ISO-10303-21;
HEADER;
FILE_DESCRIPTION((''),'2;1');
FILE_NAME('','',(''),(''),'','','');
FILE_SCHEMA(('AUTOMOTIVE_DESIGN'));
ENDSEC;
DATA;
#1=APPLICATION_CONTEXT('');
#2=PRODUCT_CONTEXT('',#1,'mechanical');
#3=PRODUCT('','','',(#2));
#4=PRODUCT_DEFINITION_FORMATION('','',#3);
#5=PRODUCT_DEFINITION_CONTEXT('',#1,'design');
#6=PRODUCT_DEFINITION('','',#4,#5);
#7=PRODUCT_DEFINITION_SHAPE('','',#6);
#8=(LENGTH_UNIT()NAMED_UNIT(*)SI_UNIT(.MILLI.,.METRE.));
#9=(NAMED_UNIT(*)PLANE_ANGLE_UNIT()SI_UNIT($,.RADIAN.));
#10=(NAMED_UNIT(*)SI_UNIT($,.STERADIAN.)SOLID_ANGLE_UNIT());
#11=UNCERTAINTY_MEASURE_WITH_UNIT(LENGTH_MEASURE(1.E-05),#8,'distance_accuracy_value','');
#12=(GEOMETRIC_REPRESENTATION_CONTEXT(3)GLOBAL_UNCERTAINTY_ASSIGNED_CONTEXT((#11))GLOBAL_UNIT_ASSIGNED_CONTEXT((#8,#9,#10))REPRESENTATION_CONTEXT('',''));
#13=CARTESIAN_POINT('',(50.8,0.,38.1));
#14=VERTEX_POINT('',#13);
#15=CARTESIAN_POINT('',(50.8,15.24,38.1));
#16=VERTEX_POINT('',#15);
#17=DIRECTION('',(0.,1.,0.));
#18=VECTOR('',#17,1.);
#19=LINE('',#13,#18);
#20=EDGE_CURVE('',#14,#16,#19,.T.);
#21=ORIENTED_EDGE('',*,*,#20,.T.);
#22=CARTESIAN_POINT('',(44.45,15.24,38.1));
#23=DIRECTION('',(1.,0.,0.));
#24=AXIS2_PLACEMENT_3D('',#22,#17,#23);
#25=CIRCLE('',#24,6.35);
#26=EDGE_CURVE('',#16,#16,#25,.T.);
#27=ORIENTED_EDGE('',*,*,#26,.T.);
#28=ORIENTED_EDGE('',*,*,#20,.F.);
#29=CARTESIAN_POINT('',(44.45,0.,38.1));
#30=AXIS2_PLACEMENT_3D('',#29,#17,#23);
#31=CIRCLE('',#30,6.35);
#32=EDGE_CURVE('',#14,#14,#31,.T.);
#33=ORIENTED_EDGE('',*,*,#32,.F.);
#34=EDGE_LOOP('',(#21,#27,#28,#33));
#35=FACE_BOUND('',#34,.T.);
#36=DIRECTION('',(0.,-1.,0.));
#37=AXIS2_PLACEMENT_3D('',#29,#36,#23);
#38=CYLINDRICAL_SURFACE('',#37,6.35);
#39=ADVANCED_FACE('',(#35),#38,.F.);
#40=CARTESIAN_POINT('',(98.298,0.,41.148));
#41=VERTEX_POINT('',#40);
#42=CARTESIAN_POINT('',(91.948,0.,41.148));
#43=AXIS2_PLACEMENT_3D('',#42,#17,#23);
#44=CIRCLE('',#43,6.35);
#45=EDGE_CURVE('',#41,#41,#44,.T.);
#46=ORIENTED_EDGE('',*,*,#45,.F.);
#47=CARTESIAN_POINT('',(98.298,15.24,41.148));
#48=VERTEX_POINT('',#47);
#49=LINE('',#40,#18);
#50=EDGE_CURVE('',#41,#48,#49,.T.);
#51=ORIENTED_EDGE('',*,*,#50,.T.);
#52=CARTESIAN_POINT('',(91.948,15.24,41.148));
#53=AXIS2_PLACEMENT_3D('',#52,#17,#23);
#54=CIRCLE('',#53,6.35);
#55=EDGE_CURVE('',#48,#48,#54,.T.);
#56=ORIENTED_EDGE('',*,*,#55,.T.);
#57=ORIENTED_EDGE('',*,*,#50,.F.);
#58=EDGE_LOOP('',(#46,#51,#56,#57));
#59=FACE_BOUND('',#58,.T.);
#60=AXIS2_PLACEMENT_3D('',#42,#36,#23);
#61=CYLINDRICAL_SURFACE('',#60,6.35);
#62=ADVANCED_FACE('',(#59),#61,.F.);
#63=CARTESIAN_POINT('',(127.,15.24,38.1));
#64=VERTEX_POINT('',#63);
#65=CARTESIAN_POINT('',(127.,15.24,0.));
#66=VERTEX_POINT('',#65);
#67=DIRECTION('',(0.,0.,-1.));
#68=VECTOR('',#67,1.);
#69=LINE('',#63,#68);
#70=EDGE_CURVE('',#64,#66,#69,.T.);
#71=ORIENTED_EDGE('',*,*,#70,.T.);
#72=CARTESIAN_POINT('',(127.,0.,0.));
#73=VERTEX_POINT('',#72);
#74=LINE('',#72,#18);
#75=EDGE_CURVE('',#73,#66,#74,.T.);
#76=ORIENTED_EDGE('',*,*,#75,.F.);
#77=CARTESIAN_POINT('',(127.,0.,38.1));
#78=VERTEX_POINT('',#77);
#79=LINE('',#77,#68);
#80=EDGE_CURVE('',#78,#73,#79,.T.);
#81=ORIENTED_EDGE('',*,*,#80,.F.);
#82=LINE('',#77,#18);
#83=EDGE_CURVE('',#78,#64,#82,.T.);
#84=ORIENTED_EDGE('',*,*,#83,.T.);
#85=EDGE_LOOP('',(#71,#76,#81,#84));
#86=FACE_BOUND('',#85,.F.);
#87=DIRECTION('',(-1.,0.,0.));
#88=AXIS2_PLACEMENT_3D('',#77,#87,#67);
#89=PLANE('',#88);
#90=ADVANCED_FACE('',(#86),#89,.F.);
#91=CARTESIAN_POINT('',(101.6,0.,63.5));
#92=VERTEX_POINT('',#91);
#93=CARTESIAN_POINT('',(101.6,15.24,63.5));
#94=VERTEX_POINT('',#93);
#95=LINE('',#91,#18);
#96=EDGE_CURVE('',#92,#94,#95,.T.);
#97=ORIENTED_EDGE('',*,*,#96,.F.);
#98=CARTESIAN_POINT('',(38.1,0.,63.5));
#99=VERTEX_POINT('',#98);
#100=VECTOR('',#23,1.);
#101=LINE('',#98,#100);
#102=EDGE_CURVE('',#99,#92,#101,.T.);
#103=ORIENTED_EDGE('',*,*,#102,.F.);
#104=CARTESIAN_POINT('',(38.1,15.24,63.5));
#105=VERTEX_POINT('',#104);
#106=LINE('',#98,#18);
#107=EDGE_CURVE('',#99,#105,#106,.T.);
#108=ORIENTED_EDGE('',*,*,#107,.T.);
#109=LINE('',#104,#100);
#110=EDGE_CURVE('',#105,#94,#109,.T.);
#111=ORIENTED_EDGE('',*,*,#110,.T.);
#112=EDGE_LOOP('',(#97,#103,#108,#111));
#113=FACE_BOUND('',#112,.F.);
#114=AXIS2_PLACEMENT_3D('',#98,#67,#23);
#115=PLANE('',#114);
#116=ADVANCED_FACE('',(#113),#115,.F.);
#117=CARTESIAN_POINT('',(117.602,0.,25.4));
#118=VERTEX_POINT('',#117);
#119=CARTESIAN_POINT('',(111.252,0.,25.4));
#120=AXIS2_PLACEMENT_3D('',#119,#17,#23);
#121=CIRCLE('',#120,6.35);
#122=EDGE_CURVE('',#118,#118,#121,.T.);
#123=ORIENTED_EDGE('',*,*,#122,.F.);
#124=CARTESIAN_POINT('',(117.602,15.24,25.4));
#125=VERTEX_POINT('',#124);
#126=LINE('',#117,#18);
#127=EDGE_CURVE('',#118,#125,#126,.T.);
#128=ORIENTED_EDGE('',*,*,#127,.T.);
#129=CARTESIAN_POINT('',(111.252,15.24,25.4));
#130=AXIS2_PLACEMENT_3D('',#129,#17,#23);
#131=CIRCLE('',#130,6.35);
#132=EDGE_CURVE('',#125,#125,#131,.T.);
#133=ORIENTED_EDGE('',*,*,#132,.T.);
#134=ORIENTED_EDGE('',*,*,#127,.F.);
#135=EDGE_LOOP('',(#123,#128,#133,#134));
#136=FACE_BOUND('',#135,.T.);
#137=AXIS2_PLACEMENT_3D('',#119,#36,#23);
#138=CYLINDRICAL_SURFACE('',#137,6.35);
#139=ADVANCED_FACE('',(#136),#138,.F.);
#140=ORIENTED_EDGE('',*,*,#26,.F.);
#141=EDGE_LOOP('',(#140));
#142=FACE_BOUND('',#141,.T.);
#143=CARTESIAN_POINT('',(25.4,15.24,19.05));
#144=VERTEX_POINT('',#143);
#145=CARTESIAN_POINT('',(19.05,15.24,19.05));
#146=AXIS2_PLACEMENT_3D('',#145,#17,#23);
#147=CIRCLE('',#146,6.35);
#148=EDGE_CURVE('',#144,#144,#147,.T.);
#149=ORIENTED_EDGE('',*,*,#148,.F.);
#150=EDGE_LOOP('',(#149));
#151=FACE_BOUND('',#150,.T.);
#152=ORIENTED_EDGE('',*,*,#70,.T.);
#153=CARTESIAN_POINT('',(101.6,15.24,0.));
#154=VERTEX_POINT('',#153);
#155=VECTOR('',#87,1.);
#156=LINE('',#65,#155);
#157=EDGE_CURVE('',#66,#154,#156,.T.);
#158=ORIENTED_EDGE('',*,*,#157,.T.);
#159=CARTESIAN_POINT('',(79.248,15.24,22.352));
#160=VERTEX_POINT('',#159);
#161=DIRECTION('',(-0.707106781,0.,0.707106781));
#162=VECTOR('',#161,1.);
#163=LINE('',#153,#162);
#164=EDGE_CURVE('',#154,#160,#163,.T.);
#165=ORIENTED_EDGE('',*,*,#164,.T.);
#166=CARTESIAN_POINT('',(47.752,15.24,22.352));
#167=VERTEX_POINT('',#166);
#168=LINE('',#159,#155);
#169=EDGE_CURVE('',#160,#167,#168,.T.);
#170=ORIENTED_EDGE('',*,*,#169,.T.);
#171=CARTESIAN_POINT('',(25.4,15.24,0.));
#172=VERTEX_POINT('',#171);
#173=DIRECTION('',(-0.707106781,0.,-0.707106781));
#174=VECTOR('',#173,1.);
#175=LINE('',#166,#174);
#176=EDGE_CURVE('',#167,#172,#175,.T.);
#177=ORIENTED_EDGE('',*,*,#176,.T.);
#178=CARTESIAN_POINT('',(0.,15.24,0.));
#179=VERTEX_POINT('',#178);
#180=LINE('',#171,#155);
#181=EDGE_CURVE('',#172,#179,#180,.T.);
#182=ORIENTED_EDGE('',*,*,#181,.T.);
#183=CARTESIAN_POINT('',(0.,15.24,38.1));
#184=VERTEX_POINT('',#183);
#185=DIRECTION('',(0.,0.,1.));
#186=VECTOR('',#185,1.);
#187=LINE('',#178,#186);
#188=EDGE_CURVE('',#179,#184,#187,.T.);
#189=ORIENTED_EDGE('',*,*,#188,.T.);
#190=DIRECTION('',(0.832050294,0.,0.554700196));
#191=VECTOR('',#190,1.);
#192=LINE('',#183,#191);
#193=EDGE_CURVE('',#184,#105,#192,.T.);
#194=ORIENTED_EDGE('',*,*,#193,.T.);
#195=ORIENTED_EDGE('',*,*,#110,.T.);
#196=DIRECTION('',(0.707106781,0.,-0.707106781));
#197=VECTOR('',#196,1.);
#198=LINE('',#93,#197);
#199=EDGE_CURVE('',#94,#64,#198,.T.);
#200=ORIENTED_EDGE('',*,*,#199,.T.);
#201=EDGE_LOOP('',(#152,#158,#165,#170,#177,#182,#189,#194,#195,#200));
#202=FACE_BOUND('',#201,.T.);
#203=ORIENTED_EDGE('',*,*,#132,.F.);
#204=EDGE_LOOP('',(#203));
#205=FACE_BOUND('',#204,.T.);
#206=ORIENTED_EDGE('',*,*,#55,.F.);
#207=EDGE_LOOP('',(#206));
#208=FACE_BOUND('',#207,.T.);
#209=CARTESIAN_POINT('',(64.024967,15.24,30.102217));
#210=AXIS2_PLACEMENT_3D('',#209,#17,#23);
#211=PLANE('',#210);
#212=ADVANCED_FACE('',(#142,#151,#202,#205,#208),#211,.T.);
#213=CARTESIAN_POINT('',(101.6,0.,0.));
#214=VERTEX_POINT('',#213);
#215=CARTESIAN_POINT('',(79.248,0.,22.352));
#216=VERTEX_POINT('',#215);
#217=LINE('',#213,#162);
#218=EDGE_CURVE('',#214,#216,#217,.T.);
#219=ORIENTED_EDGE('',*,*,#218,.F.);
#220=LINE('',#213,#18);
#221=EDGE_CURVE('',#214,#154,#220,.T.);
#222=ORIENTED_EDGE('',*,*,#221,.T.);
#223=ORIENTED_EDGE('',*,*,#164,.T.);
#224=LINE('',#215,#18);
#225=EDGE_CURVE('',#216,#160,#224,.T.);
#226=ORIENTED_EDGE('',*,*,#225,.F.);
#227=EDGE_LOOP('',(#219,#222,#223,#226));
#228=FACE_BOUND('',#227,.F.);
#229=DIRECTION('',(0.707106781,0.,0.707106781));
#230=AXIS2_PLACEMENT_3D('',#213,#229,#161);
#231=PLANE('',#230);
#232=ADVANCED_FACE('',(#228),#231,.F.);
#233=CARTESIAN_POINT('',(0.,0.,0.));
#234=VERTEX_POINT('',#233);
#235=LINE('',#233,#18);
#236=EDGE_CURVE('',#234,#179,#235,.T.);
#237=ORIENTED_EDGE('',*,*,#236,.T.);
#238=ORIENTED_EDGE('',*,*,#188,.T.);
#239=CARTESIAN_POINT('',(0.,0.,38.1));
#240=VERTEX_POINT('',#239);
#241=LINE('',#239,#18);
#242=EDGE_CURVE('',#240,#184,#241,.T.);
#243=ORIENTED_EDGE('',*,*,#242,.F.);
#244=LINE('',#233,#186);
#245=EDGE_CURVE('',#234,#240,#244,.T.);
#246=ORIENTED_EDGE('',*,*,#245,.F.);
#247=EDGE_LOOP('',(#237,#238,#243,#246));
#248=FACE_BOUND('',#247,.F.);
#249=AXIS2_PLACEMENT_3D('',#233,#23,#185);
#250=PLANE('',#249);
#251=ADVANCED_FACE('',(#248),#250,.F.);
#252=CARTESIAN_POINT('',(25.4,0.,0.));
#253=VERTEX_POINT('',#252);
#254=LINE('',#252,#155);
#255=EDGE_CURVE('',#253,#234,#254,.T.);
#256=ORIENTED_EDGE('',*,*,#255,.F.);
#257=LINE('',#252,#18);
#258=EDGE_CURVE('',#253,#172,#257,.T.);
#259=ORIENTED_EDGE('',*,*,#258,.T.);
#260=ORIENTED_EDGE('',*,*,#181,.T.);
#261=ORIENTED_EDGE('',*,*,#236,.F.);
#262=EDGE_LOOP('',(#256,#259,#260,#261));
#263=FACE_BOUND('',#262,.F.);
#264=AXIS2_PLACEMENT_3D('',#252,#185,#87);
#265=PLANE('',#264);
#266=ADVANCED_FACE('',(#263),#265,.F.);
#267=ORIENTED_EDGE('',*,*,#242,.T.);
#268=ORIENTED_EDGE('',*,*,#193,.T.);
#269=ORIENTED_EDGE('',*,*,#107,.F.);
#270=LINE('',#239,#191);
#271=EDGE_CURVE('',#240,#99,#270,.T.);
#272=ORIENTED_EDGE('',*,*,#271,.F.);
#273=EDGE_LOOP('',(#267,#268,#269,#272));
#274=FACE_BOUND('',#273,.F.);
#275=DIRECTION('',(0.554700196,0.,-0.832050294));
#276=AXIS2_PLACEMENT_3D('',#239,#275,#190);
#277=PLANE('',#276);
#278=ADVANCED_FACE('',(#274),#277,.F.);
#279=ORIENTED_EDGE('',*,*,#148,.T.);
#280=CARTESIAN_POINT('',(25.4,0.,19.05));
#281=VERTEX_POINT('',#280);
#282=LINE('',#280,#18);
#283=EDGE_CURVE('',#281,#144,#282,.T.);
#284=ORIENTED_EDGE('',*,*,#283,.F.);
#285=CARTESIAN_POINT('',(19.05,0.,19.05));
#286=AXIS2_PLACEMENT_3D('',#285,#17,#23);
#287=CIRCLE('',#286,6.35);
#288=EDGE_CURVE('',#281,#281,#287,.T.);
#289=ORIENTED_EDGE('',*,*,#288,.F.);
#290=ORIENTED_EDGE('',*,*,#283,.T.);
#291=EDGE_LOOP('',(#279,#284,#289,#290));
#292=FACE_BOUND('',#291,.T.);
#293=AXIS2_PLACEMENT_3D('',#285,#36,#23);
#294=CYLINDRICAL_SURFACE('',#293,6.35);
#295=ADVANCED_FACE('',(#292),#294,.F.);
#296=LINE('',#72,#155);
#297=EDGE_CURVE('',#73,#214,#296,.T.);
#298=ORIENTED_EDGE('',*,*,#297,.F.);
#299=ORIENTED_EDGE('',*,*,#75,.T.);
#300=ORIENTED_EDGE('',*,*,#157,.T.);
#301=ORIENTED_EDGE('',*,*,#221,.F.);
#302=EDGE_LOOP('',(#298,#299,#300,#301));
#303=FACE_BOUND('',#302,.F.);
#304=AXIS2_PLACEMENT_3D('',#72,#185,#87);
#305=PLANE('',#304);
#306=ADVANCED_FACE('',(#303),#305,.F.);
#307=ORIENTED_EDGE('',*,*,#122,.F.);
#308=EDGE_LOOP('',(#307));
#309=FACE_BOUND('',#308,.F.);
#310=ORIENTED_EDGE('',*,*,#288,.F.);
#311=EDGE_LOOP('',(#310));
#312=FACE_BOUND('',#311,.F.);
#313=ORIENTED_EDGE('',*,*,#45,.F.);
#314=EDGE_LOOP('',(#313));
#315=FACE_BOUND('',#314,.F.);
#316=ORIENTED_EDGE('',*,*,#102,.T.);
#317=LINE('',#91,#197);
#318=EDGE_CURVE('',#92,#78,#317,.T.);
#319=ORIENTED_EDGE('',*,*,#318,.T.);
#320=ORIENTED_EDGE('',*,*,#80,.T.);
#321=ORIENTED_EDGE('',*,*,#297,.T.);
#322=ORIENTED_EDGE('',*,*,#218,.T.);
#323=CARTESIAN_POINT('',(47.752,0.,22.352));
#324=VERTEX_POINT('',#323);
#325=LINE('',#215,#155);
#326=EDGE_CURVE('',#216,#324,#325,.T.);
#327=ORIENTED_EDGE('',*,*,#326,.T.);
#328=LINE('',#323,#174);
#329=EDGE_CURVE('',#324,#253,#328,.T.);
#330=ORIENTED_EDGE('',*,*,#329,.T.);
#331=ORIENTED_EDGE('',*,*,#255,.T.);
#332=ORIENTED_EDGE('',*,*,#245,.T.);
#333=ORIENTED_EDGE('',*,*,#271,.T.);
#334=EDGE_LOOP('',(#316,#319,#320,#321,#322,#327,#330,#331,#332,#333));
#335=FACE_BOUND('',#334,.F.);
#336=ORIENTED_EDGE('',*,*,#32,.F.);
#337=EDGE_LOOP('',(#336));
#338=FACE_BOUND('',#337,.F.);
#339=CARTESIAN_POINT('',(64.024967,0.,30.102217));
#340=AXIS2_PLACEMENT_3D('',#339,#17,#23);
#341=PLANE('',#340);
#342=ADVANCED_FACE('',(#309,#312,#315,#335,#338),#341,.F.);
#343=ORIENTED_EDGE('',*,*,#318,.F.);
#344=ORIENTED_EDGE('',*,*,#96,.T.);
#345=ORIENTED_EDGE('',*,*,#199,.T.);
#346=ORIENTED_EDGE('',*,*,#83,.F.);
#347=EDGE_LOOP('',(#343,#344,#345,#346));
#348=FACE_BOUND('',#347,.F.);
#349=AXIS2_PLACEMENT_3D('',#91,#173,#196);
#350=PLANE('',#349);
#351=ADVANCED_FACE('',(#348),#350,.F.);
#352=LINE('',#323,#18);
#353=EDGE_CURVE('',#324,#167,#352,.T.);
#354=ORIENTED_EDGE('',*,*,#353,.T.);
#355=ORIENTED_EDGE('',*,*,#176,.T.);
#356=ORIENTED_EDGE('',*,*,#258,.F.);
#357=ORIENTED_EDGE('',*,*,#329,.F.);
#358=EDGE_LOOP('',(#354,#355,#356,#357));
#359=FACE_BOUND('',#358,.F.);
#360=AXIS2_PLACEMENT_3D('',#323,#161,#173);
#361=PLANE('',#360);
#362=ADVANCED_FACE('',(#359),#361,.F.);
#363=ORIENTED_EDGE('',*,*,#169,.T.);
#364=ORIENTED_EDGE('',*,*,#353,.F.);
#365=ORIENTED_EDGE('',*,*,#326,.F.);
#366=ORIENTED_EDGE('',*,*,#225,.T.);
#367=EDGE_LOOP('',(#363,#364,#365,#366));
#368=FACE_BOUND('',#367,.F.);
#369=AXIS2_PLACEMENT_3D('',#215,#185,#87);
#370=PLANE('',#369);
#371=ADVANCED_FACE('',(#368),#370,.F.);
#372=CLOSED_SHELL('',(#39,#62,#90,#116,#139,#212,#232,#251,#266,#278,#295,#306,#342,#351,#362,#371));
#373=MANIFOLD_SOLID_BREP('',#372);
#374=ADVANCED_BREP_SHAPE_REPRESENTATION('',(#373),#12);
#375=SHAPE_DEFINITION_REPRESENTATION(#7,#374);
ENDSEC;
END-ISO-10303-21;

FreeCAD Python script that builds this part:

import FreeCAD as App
import Part
import Sketcher
Q = App.Units.Quantity


def add_polygon(sketch, points):
    """Adds a closed chain of lines whose ends are joined by coincident constraints."""
    first, n = sketch.GeometryCount, len(points)
    for a, b in zip(points, points[1:] + points[:1]):
        sketch.addGeometry(Part.LineSegment(App.Vector(*a, 0), App.Vector(*b, 0)), False)
    for i in range(n):
        sketch.addConstraint(Sketcher.Constraint("Coincident", first + i, 2, first + (i + 1) % n, 1))

doc = App.newDocument("Part")
params = doc.addObject("Spreadsheet::Sheet", "Params")
for row, (alias, value) in enumerate([
    ("sketch1_diameter", "0.5 in"),
    ("sketch1_width", "1 in"),
    ("sketch1_width2", "2.5 in"),
    ("sketch1_height", "1.5 in"),
    ("sketch1_width3", "1.24 in"),
    ("pad1_length", "0.6 in"),
], start=1):
    params.set(f"A{row}", alias)
    params.set(f"B{row}", "=" + value)
    params.setAlias(f"B{row}", alias)

body = doc.addObject("PartDesign::Body", "Body")

sketch1 = doc.addObject("Sketcher::SketchObject", "Sketch")
body.addObject(sketch1)
sketch1.AttachmentSupport = (doc.XZ_Plane, [""])
sketch1.MapMode = "FlatFace"
add_polygon(sketch1, [(0, 0), (0, 38), (38, 64), (102, 64), (127, 38), (127, 0), (102, 0), (79, 22), (48, 22), (25, 0)])
sketch1.addGeometry(Part.Circle(App.Vector(44, 38, 0), App.Vector(0, 0, 1), 6), False)
sketch1.addGeometry(Part.Circle(App.Vector(92, 41, 0), App.Vector(0, 0, 1), 6), False)
sketch1.addGeometry(Part.Circle(App.Vector(19, 19, 0), App.Vector(0, 0, 1), 6), False)
sketch1.addGeometry(Part.Circle(App.Vector(111, 25, 0), App.Vector(0, 0, 1), 6), False)
sketch1.addConstraint(Sketcher.Constraint("Vertical", 0))
sketch1.addConstraint(Sketcher.Constraint("Horizontal", 2))
sketch1.addConstraint(Sketcher.Constraint("Vertical", 4))
sketch1.addConstraint(Sketcher.Constraint("Horizontal", 5))
sketch1.addConstraint(Sketcher.Constraint("Horizontal", 7))
sketch1.addConstraint(Sketcher.Constraint("Horizontal", 9))
sketch1.addConstraint(Sketcher.Constraint("Coincident", 9, 2, -1, 1))
sketch1.addConstraint(Sketcher.Constraint("Equal", 10, 11))
sketch1.addConstraint(Sketcher.Constraint("Equal", 11, 12))
sketch1.addConstraint(Sketcher.Constraint("Equal", 12, 13))
sketch1.addConstraint(Sketcher.Constraint("PointOnObject", 4, 2, -1))
sketch1.addConstraint(Sketcher.Constraint("Parallel", 3, 6))
sketch1.addConstraint(Sketcher.Constraint("Perpendicular", 6, 8))
sketch1.addConstraint(Sketcher.Constraint("Horizontal", 10, 3, 0, 2))
sketch1.addConstraint(Sketcher.Constraint("Horizontal", 0, 2, 3, 2))
sketch1.addConstraint(Sketcher.Constraint("Vertical", 2, 2, 5, 2))
sketch1.addConstraint(Sketcher.Constraint("Equal", 5, 9))
sketch1.addConstraint(Sketcher.Constraint("Equal", 6, 8))
sketch1.addConstraint(Sketcher.Constraint("Diameter", 10, Q("0.5 in")))
sketch1.addConstraint(Sketcher.Constraint("DistanceX", 5, 2, 5, 1, Q("1 in")))
sketch1.addConstraint(Sketcher.Constraint("DistanceX", 2, 1, 2, 2, Q("2.5 in")))
sketch1.addConstraint(Sketcher.Constraint("DistanceY", 0, 1, 0, 2, Q("1.5 in")))
sketch1.addConstraint(Sketcher.Constraint("DistanceY", -1, 1, 13, 3, Q("1 in")))
sketch1.addConstraint(Sketcher.Constraint("DistanceX", -1, 1, 2, 2, Q("4 in")))
sketch1.addConstraint(Sketcher.Constraint("DistanceX", 12, 3, 10, 3, Q("1 in")))
sketch1.addConstraint(Sketcher.Constraint("DistanceX", 7, 2, 7, 1, Q("1.24 in")))
sketch1.addConstraint(Sketcher.Constraint("DistanceX", 6, 2, 11, 3, Q("0.5 in")))
sketch1.addConstraint(Sketcher.Constraint("DistanceX", -1, 1, 10, 3, Q("1.75 in")))
sketch1.addConstraint(Sketcher.Constraint("DistanceY", -1, 1, 11, 3, Q("1.62 in")))
sketch1.addConstraint(Sketcher.Constraint("DistanceY", -1, 1, 12, 3, Q("0.75 in")))
sketch1.addConstraint(Sketcher.Constraint("DistanceX", -1, 1, 13, 3, Q("4.38 in")))
sketch1.setExpression("Constraints[28]", "Params.sketch1_diameter")
sketch1.setExpression("Constraints[29]", "Params.sketch1_width")
sketch1.setExpression("Constraints[30]", "Params.sketch1_width2")
sketch1.setExpression("Constraints[31]", "Params.sketch1_height")
sketch1.setExpression("Constraints[35]", "Params.sketch1_width3")
pad1 = doc.addObject("PartDesign::Pad", "Pad")
body.addObject(pad1)
pad1.Profile = sketch1
pad1.setExpression("Length", "Params.pad1_length")
pad1.Reversed = True

doc.recompute()
